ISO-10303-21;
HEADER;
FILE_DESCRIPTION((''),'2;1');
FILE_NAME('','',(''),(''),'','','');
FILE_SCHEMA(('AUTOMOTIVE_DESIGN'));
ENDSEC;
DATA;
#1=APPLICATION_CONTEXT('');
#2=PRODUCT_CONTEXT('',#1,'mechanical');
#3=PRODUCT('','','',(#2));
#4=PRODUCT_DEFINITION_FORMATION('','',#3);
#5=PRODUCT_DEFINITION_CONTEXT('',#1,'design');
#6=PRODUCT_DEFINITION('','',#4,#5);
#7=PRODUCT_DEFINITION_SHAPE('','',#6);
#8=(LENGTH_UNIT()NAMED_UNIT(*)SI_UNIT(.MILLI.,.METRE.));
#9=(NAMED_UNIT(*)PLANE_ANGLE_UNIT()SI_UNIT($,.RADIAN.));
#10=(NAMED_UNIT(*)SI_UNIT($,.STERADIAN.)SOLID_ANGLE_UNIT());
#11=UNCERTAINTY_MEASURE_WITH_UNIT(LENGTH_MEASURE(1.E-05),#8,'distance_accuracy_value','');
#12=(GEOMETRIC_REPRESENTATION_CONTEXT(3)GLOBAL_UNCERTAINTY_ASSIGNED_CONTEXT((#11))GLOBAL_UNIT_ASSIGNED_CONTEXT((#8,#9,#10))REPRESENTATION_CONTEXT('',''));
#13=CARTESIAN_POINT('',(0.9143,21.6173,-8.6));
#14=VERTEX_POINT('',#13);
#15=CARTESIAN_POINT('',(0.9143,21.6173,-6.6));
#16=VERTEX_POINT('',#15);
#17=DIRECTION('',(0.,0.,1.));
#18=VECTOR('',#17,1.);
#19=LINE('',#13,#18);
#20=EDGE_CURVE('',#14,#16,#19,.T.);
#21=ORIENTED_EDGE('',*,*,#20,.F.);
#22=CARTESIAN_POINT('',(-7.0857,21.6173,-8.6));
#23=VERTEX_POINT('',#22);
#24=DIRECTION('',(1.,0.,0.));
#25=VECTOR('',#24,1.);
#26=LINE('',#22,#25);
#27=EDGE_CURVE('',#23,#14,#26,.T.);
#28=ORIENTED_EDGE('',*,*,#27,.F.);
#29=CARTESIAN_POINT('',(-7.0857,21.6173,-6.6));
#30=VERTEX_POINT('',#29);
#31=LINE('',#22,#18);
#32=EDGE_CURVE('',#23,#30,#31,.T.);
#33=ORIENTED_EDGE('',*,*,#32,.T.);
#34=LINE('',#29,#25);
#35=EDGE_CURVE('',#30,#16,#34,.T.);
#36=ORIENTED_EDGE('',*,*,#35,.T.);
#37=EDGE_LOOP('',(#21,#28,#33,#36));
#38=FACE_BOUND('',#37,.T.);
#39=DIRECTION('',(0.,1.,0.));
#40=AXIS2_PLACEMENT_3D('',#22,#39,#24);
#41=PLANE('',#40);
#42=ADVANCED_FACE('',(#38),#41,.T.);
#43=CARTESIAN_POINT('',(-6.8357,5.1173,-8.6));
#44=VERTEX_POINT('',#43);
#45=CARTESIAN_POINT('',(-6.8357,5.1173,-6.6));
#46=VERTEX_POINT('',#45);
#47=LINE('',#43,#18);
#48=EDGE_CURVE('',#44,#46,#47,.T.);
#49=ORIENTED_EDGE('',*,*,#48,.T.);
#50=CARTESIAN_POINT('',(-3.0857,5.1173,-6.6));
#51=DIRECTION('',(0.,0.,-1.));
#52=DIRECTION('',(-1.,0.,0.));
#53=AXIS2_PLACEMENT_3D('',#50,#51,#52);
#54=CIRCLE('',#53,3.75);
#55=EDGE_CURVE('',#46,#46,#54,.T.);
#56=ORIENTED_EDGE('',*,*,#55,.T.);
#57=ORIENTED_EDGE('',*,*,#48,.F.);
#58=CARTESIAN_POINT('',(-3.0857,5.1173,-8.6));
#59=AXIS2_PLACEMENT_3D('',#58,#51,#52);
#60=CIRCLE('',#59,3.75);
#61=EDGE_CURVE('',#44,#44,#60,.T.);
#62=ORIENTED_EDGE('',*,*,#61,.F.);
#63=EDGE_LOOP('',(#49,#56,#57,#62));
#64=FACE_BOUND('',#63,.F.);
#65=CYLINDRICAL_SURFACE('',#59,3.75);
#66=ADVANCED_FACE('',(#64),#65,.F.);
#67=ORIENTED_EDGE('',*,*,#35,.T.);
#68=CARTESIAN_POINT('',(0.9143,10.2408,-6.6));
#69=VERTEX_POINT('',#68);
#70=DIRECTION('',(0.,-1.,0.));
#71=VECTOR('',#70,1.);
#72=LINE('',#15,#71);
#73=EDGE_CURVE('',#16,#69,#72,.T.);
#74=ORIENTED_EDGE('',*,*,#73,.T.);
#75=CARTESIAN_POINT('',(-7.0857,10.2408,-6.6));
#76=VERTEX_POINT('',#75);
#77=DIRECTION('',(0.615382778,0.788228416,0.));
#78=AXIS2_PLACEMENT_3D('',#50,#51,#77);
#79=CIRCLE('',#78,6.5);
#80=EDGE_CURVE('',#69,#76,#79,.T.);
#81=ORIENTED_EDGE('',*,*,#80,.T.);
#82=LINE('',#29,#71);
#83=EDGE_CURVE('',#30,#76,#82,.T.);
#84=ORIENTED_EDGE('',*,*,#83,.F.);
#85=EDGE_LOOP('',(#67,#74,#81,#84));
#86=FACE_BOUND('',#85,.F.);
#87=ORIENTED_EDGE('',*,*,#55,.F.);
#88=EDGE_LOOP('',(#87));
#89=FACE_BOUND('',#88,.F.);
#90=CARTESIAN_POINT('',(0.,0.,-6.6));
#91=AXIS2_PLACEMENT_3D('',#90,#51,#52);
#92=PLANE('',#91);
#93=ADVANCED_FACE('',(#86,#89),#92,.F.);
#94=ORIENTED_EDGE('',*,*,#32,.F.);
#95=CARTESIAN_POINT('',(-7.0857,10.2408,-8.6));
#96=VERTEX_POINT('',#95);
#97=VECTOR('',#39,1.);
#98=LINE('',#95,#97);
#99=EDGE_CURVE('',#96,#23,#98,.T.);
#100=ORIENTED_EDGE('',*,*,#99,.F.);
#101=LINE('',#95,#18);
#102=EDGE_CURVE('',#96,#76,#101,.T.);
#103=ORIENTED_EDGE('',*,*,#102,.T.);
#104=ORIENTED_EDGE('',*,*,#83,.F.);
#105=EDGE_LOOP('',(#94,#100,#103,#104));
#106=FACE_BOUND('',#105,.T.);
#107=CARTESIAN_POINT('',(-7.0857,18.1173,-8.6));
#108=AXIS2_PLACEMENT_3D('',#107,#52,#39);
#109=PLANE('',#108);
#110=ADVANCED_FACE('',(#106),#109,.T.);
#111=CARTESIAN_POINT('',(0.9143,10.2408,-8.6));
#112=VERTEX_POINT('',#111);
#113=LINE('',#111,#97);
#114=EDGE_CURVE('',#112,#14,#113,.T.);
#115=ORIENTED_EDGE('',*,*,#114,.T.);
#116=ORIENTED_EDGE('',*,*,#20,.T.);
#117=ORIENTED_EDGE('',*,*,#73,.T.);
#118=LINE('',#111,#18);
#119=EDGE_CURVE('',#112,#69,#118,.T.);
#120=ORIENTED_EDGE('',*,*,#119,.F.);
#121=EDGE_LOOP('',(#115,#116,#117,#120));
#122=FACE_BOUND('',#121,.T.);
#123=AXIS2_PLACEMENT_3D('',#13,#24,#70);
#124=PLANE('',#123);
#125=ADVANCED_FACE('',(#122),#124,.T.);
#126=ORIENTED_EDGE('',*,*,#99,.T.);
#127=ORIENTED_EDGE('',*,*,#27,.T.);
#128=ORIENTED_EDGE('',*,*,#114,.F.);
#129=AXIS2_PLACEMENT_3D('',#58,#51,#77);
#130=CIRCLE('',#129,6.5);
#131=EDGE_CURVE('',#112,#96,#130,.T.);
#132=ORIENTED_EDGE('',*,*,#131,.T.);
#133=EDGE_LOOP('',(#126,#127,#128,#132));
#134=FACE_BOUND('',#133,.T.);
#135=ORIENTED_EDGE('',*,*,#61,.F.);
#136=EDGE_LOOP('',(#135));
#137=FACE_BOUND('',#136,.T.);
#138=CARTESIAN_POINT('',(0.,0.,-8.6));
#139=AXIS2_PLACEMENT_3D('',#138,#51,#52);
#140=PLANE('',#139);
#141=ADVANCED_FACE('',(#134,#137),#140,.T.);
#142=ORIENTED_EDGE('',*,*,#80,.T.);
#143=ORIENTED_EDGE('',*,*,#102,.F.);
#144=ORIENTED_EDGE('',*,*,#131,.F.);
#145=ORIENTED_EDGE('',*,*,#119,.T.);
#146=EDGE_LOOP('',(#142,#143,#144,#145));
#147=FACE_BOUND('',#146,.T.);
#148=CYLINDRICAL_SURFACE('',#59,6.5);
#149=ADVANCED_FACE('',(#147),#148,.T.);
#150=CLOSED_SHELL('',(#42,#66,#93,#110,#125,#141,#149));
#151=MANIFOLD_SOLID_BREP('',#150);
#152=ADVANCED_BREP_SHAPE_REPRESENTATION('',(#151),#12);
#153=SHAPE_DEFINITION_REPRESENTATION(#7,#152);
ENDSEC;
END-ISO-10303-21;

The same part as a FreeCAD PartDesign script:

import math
import FreeCAD as App
import Part
import Sketcher


def add_polygon(sketch, points):
    """Adds a closed chain of lines whose ends are joined by coincident constraints."""
    first, n = sketch.GeometryCount, len(points)
    for a, b in zip(points, points[1:] + points[:1]):
        sketch.addGeometry(Part.LineSegment(App.Vector(*a, 0), App.Vector(*b, 0)), False)
    for i in range(n):
        sketch.addConstraint(Sketcher.Constraint("Coincident", first + i, 2, first + (i + 1) % n, 1))

doc = App.newDocument("Part")
body = doc.addObject("PartDesign::Body", "Body")

sketch1 = body.newObject("Sketcher::SketchObject", "Sketch")
sketch1.AttachmentSupport = (doc.getObject("XY_Plane"), [""])
sketch1.MapMode = "FlatFace"
sketch1.AttachmentOffset = App.Placement(App.Vector(0, 0, -6.6), App.Rotation())
sketch1.addGeometry(Part.LineSegment(App.Vector(-13, 5, 0), App.Vector(-13, 18, 0)), False)
sketch1.addGeometry(Part.LineSegment(App.Vector(-13, 18, 0), App.Vector(7, 18, 0)), False)
sketch1.addGeometry(Part.LineSegment(App.Vector(7, 18, 0), App.Vector(7, 5, 0)), False)
sketch1.addGeometry(Part.ArcOfCircle(Part.Circle(App.Vector(-3, 5, 0), App.Vector(0, 0, 1), 10), math.radians(180), math.radians(360)), False)
sketch1.addConstraint(Sketcher.Constraint("Coincident", 0, 2, 1, 1))
sketch1.addConstraint(Sketcher.Constraint("Coincident", 1, 2, 2, 1))
sketch1.addConstraint(Sketcher.Constraint("Tangent", 2, 2, 3, 2))
sketch1.addConstraint(Sketcher.Constraint("Tangent", 3, 1, 0, 1))
sketch1.addConstraint(Sketcher.Constraint("Vertical", 0))
sketch1.addConstraint(Sketcher.Constraint("Horizontal", 1))
sketch1.addConstraint(Sketcher.Constraint("Vertical", 2))
sketch1.addConstraint(Sketcher.Constraint("Radius", 3, 10.0))
sketch1.addConstraint(Sketcher.Constraint("DistanceY", 0, 1, 0, 2, 13.0))
sketch1.addConstraint(Sketcher.Constraint("DistanceX", 3, 3, -1, 1, 3.0857))
sketch1.addConstraint(Sketcher.Constraint("DistanceY", -1, 1, 3, 3, 5.1173))
pad1 = body.newObject("PartDesign::Pad", "Pad")
pad1.Profile = sketch1
pad1.Length = 2
pad1.Reversed = True

sketch2 = body.newObject("Sketcher::SketchObject", "Sketch001")
sketch2.AttachmentSupport = (doc.getObject("XY_Plane"), [""])
sketch2.MapMode = "FlatFace"
sketch2.AttachmentOffset = App.Placement(App.Vector(0, 0, -8.6), App.Rotation())
sketch2.addGeometry(Part.Circle(App.Vector(-3.1, 5.1, 0), App.Vector(0, 0, 1), 3.8), False)
sketch2.addConstraint(Sketcher.Constraint("Diameter", 0, 7.5))
sketch2.addConstraint(Sketcher.Constraint("DistanceX", 0, 3, -1, 1, 3.0857))
sketch2.addConstraint(Sketcher.Constraint("DistanceY", -1, 1, 0, 3, 5.1173))
pocket1 = body.newObject("PartDesign::Pocket", "Pocket")
pocket1.Profile = sketch2
pocket1.Length = 2
pocket1.Reversed = True

sketch3 = body.newObject("Sketcher::SketchObject", "Sketch002")
sketch3.AttachmentSupport = (doc.getObject("XY_Plane"), [""])
sketch3.MapMode = "FlatFace"
sketch3.AttachmentOffset = App.Placement(App.Vector(0, 0, -8.6), App.Rotation())
sketch3.addGeometry(Part.ArcOfCircle(Part.Circle(App.Vector(-3, 5, 0), App.Vector(0, 0, 1), 10), math.radians(180), math.radians(360)), False)
sketch3.addGeometry(Part.LineSegment(App.Vector(-13, 5, 0), App.Vector(-13, 18, 0)), False)
sketch3.addGeometry(Part.LineSegment(App.Vector(-13, 18, 0), App.Vector(-7, 18, 0)), False)
sketch3.addGeometry(Part.LineSegment(App.Vector(-7, 18, 0), App.Vector(-7, 10, 0)), False)
sketch3.addGeometry(Part.ArcOfCircle(Part.Circle(App.Vector(-3, 5, 0), App.Vector(0, 0, 1), 6), math.radians(128), math.radians(412)), False)
sketch3.addGeometry(Part.LineSegment(App.Vector(1, 10, 0), App.Vector(1, 18, 0)), False)
sketch3.addGeometry(Part.LineSegment(App.Vector(1, 18, 0), App.Vector(7, 18, 0)), False)
sketch3.addGeometry(Part.LineSegment(App.Vector(7, 18, 0), App.Vector(7, 5, 0)), False)
sketch3.addConstraint(Sketcher.Constraint("Tangent", 0, 1, 1, 1))
sketch3.addConstraint(Sketcher.Constraint("Coincident", 1, 2, 2, 1))
sketch3.addConstraint(Sketcher.Constraint("Coincident", 2, 2, 3, 1))
sketch3.addConstraint(Sketcher.Constraint("Coincident", 3, 2, 4, 1))
sketch3.addConstraint(Sketcher.Constraint("Coincident", 4, 2, 5, 1))
sketch3.addConstraint(Sketcher.Constraint("Coincident", 5, 2, 6, 1))
sketch3.addConstraint(Sketcher.Constraint("Coincident", 6, 2, 7, 1))
sketch3.addConstraint(Sketcher.Constraint("Tangent", 7, 2, 0, 2))
sketch3.addConstraint(Sketcher.Constraint("Vertical", 1))
sketch3.addConstraint(Sketcher.Constraint("Horizontal", 2))
sketch3.addConstraint(Sketcher.Constraint("Vertical", 3))
sketch3.addConstraint(Sketcher.Constraint("Vertical", 5))
sketch3.addConstraint(Sketcher.Constraint("Horizontal", 6))
sketch3.addConstraint(Sketcher.Constraint("Vertical", 7))
sketch3.addConstraint(Sketcher.Constraint("Coincident", 4, 3, 0, 3))
sketch3.addConstraint(Sketcher.Constraint("Horizontal", 3, 2, 4, 2))
sketch3.addConstraint(Sketcher.Constraint("Horizontal", 2, 2, 5, 2))
sketch3.addConstraint(Sketcher.Constraint("Radius", 0, 10.0))
sketch3.addConstraint(Sketcher.Constraint("DistanceX", 2, 2, 0, 3, 4.0))
sketch3.addConstraint(Sketcher.Constraint("Radius", 4, 6.5))
sketch3.addConstraint(Sketcher.Constraint("DistanceY", 1, 1, 1, 2, 13.0))
sketch3.addConstraint(Sketcher.Constraint("DistanceX", 0, 3, -1, 1, 3.0857))
sketch3.addConstraint(Sketcher.Constraint("DistanceY", -1, 1, 0, 3, 5.1173))
pocket2 = body.newObject("PartDesign::Pocket", "Pocket001")
pocket2.Profile = sketch3
pocket2.Length = 2
pocket2.Reversed = True

sketch4 = body.newObject("Sketcher::SketchObject", "Sketch003")
sketch4.AttachmentSupport = (doc.getObject("XY_Plane"), [""])
sketch4.MapMode = "FlatFace"
sketch4.AttachmentOffset = App.Placement(App.Vector(0, 0, -8.6), App.Rotation())
add_polygon(sketch4, [(0.9, 18.1), (-7.1, 18.1), (-7.1, 21.6), (0.9, 21.6)])
sketch4.addConstraint(Sketcher.Constraint("Horizontal", 0))
sketch4.addConstraint(Sketcher.Constraint("Vertical", 1))
sketch4.addConstraint(Sketcher.Constraint("Horizontal", 2))
sketch4.addConstraint(Sketcher.Constraint("Vertical", 3))
sketch4.addConstraint(Sketcher.Constraint("DistanceY", 1, 1, 1, 2, 3.5))
sketch4.addConstraint(Sketcher.Constraint("DistanceX", 0, 2, 0, 1, 8.0))
sketch4.addConstraint(Sketcher.Constraint("DistanceX", 0, 2, -1, 1, 7.0857))
sketch4.addConstraint(Sketcher.Constraint("DistanceY", -1, 1, 0, 2, 18.1173))
pad2 = body.newObject("PartDesign::Pad", "Pad001")
pad2.Profile = sketch4
pad2.Length = 2

doc.recompute()
